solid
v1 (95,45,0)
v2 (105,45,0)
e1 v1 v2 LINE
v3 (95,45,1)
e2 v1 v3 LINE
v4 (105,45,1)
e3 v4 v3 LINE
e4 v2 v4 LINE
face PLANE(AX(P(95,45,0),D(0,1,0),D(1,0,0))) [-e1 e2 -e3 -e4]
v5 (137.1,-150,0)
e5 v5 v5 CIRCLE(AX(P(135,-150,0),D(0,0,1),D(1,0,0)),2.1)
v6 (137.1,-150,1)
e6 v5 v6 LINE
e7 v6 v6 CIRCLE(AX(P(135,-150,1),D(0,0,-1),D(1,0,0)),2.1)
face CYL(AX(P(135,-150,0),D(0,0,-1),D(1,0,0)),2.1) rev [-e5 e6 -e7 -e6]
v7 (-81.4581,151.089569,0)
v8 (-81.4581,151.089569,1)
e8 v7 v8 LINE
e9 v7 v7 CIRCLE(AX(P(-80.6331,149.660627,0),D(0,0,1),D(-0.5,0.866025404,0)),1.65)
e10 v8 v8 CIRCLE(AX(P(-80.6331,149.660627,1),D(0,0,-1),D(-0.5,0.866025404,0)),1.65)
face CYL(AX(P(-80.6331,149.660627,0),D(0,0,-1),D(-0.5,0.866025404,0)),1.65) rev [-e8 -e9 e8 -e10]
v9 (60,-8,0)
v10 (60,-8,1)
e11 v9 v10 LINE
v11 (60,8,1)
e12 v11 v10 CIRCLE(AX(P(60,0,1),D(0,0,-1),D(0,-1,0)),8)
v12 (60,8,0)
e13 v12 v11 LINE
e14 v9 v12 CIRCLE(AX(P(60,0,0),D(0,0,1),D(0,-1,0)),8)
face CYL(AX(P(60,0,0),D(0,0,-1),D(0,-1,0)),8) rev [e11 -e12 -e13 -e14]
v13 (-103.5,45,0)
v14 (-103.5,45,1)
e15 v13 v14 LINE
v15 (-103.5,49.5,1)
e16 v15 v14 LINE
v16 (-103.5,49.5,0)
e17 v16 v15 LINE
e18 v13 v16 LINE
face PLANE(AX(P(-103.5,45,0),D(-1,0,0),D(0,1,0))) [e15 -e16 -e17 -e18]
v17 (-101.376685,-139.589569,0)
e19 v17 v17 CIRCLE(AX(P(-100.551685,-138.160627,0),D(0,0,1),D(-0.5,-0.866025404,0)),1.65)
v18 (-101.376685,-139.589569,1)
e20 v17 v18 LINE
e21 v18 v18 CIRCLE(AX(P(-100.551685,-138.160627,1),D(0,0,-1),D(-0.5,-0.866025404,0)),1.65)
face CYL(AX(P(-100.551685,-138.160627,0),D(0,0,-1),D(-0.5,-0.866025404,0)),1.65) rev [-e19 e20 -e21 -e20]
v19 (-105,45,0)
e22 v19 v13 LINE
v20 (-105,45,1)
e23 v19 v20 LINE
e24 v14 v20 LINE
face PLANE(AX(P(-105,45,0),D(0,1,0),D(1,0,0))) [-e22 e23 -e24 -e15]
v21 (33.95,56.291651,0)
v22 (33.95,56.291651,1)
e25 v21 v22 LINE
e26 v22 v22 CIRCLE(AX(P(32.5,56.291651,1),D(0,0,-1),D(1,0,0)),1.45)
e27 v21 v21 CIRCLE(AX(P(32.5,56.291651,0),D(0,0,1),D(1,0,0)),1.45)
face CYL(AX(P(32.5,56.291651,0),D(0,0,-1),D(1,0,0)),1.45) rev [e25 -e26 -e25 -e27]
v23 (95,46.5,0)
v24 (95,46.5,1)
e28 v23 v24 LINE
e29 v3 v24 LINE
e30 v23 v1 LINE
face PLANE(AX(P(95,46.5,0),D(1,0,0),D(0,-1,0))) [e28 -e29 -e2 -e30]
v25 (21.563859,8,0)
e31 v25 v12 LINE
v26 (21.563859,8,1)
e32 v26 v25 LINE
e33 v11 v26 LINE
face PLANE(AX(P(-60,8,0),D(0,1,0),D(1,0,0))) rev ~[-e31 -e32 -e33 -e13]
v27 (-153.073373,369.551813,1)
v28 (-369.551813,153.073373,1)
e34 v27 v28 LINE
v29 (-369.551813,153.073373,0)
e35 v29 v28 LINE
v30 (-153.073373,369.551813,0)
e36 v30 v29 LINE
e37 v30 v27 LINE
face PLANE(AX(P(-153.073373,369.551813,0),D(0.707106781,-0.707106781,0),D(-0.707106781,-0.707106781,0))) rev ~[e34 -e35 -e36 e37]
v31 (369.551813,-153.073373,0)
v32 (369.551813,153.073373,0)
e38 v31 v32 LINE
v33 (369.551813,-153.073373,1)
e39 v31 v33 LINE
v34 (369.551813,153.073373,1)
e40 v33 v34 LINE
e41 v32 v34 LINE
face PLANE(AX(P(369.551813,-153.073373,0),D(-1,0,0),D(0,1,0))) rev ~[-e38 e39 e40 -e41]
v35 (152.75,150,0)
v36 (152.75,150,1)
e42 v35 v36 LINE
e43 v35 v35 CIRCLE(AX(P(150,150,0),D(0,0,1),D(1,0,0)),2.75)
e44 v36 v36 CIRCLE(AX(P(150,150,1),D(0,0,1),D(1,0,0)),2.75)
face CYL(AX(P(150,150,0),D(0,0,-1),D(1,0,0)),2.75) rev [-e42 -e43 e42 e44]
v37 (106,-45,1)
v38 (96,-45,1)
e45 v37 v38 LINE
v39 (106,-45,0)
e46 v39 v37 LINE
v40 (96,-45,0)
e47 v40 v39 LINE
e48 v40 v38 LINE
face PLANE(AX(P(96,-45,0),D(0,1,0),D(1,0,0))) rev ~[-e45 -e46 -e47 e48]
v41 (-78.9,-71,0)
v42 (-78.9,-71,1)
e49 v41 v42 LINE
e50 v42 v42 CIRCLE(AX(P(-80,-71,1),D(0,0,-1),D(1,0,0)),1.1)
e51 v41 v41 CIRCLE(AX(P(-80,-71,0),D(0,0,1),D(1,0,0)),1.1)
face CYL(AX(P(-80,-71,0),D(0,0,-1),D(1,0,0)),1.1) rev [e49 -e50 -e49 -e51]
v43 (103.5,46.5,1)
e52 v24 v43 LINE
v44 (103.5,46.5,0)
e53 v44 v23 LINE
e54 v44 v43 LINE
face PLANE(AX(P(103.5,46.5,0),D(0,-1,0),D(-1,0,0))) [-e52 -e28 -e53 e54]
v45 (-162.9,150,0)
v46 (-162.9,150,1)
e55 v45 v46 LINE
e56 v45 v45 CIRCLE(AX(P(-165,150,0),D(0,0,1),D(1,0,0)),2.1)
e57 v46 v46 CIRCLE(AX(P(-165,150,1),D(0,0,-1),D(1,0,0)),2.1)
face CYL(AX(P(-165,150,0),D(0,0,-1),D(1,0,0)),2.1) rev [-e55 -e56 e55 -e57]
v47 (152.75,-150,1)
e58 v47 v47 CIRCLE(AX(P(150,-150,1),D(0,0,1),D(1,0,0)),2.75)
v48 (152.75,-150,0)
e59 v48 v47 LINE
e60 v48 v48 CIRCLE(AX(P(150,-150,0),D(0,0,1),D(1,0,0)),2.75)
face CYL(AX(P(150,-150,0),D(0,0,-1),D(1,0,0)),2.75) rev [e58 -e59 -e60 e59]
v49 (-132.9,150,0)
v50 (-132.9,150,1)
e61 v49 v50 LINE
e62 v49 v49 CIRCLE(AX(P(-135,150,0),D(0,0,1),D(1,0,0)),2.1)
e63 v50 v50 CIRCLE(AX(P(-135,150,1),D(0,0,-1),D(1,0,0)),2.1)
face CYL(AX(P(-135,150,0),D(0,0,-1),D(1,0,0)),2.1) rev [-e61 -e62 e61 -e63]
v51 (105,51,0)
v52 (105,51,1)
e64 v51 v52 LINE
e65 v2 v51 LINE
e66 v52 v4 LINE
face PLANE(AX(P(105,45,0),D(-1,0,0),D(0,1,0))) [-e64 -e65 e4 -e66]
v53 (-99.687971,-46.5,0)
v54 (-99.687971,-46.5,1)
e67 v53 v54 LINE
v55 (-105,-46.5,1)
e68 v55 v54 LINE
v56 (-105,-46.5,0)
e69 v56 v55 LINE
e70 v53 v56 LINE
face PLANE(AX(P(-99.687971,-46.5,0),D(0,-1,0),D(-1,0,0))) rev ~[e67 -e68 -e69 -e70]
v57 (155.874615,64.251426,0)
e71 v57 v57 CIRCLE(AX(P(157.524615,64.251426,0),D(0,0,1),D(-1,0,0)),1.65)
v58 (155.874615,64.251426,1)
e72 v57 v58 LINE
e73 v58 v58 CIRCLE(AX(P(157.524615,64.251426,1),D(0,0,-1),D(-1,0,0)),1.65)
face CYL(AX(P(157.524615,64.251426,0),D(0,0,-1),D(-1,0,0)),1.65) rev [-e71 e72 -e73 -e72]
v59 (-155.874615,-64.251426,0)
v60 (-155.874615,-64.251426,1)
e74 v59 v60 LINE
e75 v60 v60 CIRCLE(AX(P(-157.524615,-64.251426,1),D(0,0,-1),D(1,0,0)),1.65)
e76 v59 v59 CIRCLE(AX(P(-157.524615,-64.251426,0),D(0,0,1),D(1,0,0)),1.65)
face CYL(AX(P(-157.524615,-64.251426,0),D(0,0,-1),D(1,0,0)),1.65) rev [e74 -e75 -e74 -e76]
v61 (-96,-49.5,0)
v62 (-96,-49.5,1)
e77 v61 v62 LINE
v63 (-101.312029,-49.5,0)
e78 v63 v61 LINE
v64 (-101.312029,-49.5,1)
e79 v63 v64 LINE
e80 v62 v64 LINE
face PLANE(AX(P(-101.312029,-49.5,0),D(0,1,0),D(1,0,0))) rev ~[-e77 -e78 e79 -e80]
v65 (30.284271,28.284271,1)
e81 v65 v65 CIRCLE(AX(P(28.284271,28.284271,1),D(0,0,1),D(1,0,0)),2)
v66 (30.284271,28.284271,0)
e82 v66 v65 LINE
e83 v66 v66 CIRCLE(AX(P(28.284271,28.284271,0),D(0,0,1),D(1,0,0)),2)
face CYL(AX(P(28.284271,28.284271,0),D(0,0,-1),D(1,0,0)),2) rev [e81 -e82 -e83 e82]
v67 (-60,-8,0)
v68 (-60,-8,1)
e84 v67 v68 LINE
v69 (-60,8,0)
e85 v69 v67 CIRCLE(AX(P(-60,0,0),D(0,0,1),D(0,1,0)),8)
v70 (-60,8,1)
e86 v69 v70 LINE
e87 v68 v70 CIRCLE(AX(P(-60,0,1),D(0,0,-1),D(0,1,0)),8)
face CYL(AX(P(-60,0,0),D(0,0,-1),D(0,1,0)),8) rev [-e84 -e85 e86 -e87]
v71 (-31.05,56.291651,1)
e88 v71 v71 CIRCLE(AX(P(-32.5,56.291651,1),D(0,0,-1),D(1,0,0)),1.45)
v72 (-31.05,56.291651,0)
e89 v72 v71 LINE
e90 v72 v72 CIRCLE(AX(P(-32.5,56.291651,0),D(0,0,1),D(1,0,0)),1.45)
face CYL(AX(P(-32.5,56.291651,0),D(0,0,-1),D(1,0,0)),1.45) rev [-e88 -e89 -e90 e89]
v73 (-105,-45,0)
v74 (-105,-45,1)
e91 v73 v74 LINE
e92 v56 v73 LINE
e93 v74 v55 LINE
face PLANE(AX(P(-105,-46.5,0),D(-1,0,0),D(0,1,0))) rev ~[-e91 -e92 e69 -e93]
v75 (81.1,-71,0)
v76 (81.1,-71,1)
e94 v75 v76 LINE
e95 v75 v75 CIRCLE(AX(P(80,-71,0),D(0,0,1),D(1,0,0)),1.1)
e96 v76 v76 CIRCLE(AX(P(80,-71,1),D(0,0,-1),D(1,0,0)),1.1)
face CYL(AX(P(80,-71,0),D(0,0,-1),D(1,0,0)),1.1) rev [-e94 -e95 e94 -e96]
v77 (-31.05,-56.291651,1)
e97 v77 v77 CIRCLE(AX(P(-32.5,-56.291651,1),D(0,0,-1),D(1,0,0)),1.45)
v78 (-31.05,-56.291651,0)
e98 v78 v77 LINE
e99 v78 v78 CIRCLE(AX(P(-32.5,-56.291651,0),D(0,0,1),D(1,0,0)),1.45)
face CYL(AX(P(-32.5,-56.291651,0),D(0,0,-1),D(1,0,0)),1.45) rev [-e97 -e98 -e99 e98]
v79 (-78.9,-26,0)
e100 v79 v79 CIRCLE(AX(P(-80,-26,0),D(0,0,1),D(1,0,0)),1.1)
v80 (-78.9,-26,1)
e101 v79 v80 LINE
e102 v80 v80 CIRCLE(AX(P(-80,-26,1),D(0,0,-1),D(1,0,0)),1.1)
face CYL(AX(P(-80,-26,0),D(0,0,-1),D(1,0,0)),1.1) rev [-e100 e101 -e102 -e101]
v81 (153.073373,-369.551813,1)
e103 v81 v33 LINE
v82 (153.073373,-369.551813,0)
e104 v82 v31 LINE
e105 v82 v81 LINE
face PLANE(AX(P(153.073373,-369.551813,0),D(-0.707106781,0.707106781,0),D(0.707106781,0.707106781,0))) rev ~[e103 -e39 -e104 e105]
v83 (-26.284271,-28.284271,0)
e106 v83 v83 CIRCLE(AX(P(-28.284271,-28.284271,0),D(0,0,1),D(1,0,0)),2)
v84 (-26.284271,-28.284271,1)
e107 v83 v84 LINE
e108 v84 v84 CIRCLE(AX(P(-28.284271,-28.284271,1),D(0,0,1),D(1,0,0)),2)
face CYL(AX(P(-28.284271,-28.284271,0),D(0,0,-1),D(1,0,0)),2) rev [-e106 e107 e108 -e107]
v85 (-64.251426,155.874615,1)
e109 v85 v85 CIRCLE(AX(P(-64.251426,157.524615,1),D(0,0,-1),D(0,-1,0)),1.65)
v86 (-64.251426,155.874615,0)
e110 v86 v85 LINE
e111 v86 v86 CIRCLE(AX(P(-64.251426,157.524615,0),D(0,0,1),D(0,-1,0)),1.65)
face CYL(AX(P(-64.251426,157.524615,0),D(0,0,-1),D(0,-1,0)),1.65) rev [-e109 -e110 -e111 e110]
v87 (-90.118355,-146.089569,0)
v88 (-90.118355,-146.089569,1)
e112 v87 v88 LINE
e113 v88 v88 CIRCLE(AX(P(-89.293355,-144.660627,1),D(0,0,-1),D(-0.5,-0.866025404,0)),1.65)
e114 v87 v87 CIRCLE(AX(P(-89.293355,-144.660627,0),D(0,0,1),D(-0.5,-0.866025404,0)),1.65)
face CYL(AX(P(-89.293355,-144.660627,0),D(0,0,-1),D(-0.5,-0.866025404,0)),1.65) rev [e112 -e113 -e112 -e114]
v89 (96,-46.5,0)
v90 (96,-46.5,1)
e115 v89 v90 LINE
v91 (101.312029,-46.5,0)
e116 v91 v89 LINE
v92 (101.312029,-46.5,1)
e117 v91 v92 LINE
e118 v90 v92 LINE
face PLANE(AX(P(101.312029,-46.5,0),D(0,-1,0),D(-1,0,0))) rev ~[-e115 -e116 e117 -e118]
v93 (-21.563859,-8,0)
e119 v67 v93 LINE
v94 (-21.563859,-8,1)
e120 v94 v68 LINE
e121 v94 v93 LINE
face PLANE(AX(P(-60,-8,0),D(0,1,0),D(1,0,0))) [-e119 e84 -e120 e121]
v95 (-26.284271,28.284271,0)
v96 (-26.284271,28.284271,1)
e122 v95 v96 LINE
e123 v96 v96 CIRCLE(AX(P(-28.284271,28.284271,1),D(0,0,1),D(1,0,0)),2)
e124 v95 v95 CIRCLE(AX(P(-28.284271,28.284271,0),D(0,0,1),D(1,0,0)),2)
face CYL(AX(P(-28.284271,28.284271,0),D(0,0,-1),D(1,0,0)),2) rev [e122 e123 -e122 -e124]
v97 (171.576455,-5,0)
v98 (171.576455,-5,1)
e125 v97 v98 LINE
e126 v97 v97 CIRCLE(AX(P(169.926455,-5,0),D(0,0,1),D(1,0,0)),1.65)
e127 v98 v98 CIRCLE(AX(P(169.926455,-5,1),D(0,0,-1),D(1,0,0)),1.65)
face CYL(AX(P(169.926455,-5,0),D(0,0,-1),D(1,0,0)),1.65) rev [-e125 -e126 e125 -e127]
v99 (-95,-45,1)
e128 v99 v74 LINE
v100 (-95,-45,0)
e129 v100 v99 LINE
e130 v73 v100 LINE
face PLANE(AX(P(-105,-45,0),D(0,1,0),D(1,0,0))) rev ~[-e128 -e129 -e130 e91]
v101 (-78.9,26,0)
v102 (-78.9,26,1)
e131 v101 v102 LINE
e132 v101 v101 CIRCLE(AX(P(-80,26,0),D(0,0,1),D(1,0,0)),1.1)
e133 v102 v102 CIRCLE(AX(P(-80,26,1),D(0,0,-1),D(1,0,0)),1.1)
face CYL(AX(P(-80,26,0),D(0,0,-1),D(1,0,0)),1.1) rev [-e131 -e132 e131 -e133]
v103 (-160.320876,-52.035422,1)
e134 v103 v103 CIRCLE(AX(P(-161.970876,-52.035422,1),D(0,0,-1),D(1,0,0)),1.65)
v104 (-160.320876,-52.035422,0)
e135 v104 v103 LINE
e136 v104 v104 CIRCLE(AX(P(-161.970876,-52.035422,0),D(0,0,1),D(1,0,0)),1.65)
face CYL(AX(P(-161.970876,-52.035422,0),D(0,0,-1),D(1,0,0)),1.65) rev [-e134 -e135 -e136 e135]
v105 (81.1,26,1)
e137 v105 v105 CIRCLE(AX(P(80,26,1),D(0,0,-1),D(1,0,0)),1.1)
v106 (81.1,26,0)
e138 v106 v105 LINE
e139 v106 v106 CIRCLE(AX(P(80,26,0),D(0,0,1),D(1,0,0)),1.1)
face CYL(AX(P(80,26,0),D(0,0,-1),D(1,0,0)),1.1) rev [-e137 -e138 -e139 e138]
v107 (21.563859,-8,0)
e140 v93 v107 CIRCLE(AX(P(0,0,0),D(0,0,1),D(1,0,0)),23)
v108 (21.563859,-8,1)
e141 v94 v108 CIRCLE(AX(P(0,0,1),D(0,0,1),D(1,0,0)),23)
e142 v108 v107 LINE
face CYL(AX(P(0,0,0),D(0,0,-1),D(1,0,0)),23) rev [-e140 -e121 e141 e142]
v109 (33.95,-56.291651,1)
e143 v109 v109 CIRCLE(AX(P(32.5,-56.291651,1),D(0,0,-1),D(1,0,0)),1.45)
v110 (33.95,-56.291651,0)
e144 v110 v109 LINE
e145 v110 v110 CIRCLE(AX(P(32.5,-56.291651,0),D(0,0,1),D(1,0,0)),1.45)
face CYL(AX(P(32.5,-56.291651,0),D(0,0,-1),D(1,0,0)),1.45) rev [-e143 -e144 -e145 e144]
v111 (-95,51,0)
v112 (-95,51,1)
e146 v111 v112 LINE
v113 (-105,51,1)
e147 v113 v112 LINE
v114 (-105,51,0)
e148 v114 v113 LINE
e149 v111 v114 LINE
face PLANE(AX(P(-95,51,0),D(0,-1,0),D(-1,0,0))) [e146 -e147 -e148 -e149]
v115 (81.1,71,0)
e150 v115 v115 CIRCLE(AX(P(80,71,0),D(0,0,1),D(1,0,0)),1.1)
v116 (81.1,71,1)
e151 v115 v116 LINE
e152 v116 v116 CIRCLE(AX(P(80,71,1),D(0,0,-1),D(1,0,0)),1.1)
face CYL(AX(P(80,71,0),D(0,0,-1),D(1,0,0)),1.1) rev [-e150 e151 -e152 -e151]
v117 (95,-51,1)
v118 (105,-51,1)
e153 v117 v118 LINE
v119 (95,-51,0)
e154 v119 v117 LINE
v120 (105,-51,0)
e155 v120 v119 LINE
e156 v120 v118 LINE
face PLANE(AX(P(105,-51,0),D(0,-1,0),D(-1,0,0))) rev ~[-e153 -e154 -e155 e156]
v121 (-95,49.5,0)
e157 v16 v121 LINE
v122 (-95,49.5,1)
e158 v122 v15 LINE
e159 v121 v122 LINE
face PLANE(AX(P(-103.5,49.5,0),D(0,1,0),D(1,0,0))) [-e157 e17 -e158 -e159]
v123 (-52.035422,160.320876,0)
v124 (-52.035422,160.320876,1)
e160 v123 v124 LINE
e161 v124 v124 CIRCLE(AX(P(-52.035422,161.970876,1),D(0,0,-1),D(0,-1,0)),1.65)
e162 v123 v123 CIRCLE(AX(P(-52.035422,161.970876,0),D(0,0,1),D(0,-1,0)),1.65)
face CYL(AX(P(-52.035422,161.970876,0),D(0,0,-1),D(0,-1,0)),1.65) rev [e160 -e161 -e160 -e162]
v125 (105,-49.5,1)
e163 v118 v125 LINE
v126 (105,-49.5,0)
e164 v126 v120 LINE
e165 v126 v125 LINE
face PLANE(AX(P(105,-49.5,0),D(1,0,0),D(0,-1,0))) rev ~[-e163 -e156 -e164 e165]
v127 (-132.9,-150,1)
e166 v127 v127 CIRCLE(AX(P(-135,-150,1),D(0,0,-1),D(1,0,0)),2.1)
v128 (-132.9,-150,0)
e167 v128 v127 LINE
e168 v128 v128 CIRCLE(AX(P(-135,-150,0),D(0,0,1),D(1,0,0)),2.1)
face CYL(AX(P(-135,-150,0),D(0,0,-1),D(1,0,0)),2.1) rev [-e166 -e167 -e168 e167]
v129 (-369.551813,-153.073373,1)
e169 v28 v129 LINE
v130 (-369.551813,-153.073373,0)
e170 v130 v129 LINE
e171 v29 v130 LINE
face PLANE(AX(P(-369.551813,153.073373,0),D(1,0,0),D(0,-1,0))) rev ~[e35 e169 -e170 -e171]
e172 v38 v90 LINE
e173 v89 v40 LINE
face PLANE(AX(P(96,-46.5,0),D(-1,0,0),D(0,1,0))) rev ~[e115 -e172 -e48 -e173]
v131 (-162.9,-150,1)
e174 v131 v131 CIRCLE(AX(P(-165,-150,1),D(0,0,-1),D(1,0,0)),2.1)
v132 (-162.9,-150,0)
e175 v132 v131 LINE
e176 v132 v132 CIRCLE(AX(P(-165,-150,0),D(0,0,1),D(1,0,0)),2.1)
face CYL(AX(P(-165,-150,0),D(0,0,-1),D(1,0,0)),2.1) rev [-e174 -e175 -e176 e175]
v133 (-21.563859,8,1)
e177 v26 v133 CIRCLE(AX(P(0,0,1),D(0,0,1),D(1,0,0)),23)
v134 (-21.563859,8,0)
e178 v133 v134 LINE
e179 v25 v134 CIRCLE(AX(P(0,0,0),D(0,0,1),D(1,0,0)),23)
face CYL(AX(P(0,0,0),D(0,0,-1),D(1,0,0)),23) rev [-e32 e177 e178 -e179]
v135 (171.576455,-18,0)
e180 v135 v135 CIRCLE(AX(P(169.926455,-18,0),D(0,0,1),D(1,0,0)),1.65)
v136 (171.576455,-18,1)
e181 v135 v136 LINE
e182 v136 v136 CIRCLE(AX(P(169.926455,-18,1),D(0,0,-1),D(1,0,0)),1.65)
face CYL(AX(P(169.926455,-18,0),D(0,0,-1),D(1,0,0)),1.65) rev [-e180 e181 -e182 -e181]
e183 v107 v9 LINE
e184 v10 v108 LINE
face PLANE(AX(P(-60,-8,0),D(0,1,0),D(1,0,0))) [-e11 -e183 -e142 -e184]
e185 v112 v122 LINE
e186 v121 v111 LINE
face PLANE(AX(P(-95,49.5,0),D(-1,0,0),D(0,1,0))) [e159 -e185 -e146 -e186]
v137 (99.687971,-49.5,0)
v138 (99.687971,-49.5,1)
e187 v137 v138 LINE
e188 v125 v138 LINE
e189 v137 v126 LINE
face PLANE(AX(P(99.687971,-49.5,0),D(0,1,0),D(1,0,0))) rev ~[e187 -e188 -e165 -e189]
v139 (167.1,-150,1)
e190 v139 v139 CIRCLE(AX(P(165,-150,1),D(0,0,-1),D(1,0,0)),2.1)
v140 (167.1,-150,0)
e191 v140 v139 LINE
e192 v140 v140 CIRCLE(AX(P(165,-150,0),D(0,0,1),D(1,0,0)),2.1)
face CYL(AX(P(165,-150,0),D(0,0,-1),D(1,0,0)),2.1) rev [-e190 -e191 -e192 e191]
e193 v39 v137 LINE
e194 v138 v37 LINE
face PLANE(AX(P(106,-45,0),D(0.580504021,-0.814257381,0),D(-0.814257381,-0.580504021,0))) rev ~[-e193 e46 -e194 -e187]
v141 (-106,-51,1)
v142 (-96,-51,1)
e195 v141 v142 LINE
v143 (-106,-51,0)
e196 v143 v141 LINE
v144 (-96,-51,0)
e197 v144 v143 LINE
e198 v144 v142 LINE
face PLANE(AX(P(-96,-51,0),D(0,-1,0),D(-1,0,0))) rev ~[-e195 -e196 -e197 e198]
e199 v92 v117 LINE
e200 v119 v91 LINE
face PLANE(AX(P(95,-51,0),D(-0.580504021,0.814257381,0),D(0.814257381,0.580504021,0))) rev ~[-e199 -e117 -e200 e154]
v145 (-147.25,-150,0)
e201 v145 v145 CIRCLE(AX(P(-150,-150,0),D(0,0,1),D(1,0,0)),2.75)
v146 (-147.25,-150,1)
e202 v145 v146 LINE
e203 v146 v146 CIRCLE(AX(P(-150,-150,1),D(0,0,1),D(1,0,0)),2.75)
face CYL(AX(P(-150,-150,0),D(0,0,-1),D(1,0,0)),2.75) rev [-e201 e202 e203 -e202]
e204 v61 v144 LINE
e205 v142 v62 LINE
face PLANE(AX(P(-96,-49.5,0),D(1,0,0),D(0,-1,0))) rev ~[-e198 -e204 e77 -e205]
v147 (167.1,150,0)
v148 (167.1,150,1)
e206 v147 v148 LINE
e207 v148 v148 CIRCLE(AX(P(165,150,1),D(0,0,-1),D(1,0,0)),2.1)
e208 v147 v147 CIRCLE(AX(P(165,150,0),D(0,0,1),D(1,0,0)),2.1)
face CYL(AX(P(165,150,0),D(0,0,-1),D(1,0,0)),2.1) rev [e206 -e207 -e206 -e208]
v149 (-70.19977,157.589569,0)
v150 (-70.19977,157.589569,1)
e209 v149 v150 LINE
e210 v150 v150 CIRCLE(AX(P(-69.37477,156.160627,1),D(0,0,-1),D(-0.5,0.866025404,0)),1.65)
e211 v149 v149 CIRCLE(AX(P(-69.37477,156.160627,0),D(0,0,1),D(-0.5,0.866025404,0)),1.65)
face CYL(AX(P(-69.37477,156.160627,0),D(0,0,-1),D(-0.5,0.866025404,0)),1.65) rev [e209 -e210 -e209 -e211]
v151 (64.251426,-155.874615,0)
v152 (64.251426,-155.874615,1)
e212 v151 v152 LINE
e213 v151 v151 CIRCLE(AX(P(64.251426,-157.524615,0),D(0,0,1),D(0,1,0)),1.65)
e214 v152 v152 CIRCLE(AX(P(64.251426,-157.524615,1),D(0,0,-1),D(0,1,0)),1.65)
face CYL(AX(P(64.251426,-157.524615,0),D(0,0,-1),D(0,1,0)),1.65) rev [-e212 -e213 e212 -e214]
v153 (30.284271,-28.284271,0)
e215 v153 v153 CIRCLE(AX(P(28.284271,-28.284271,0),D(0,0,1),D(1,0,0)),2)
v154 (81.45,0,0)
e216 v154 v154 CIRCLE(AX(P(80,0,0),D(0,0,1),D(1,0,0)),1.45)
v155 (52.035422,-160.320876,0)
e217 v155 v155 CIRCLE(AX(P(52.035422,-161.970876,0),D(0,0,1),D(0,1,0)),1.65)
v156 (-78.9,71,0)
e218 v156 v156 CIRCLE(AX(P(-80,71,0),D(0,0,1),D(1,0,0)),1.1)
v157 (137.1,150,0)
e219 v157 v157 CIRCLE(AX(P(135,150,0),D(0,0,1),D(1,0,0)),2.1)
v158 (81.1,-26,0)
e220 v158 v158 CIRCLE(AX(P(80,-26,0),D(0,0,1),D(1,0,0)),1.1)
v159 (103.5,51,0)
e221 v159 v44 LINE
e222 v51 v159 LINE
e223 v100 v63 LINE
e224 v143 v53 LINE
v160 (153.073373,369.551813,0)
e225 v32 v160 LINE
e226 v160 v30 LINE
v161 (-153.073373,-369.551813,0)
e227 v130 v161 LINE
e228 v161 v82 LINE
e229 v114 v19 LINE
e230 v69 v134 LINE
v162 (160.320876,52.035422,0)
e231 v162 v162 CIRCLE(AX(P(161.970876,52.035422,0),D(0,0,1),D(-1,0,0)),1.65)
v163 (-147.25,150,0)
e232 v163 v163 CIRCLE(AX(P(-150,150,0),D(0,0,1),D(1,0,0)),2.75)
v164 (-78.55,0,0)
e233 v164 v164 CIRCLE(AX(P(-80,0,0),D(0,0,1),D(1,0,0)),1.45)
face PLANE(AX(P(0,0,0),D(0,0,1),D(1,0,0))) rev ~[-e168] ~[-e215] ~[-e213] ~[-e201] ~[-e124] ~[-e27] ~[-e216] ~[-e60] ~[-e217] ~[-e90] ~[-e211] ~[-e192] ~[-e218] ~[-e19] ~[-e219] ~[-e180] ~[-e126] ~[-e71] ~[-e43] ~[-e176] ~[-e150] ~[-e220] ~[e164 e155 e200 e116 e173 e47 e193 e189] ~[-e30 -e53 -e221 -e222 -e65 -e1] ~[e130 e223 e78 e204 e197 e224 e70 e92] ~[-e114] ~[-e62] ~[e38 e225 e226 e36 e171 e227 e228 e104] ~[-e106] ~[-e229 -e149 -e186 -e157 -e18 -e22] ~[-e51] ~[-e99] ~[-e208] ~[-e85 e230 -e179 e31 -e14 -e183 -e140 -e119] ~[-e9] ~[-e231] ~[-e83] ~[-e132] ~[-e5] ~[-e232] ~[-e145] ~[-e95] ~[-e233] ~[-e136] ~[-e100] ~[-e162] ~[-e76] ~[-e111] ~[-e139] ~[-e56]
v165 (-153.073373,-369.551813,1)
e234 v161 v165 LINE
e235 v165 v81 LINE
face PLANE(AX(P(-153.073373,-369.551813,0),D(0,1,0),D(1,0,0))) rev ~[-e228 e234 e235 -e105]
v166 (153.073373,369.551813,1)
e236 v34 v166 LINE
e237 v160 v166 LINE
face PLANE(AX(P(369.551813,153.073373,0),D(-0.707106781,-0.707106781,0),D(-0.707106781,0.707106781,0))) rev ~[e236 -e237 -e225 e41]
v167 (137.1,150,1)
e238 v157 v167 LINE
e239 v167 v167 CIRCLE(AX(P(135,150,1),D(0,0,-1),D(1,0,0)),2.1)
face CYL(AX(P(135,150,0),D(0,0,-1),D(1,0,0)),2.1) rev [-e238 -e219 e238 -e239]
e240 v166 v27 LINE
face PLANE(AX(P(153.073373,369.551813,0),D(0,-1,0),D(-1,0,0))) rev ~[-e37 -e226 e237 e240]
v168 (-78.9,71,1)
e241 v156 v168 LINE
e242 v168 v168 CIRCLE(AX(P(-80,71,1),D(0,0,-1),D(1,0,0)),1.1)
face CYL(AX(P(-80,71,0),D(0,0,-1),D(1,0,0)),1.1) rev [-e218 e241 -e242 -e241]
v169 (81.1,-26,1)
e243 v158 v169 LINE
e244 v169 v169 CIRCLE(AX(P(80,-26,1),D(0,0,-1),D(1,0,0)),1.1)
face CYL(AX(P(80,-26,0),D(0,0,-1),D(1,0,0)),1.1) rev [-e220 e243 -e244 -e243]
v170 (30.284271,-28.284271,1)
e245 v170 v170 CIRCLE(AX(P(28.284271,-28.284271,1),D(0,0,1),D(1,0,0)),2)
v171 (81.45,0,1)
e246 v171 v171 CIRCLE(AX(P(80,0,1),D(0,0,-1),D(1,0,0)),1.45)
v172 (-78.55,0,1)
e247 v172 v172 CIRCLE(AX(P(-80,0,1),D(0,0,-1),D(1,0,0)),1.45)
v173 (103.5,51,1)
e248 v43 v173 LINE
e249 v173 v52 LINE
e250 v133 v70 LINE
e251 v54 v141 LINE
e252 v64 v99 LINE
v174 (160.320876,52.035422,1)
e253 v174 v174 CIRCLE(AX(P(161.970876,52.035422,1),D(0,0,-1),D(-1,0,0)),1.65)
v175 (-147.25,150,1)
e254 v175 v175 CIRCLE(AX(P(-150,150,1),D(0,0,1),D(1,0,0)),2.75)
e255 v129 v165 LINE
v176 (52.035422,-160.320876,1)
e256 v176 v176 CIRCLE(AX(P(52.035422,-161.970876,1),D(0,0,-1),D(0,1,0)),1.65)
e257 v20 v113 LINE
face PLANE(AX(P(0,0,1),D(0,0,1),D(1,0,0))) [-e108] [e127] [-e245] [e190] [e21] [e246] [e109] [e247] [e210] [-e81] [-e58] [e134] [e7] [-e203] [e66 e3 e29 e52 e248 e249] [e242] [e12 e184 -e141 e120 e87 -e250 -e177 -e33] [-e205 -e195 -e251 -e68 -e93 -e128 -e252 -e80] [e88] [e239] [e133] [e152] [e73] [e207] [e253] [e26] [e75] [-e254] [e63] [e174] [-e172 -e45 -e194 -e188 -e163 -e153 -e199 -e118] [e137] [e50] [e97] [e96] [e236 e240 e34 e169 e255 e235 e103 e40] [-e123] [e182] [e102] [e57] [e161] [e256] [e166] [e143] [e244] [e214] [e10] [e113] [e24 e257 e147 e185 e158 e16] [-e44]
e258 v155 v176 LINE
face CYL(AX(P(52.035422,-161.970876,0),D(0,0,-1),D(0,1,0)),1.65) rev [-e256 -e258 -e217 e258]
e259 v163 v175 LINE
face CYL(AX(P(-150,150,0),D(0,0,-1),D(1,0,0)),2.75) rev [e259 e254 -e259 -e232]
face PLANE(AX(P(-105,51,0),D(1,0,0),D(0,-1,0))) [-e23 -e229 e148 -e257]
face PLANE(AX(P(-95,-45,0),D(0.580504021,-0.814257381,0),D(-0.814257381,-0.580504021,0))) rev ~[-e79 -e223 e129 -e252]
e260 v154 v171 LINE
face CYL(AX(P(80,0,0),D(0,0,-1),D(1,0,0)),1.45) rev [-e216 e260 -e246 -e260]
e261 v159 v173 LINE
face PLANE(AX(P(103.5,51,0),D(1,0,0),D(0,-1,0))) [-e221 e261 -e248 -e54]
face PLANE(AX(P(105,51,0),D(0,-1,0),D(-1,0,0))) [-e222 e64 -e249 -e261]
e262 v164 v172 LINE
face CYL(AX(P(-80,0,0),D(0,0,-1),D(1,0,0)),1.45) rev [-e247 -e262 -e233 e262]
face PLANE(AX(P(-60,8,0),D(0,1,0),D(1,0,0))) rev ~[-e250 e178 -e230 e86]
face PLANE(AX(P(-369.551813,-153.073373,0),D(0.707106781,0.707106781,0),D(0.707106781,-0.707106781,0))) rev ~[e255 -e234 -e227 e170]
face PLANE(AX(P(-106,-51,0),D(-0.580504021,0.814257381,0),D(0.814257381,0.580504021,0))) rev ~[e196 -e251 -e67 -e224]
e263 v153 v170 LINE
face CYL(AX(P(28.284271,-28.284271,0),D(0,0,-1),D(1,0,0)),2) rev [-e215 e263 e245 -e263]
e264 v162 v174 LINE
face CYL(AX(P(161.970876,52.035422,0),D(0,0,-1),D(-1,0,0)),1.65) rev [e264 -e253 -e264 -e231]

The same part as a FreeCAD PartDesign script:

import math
import FreeCAD as App
import Part
import Sketcher
from FreeCAD import Vector
Q = App.Units.Quantity


def edges_at(feature, points):
    """Names of the edges that pass closest to the given points."""
    edges = feature.Shape.Edges
    near = lambda p: min(range(len(edges)), key=lambda i: edges[i].distToShape(Part.Vertex(*p))[0])
    return sorted({f"Edge{near(p) + 1}" for p in points})

doc = App.newDocument("Part")
body = doc.addObject("PartDesign::Body", "Body")

sketch1 = body.newObject("Sketcher::SketchObject", "Sketch")
sketch1.AttachmentSupport = (doc.getObject("XY_Plane"), [""])
sketch1.MapMode = "FlatFace"
sketch1.addGeometry([
    Part.LineSegment(Vector(103.6, 250, 0), Vector(-103.6, 250, 0)),
    Part.LineSegment(Vector(-103.6, 250, 0), Vector(-250, 103.6, 0)),
    Part.LineSegment(Vector(-250, 103.6, 0), Vector(-250, -103.6, 0)),
    Part.LineSegment(Vector(-250, -103.6, 0), Vector(-103.6, -250, 0)),
    Part.LineSegment(Vector(-103.6, -250, 0), Vector(103.6, -250, 0)),
    Part.LineSegment(Vector(103.6, -250, 0), Vector(250, -103.6, 0)),
    Part.LineSegment(Vector(250, -103.6, 0), Vector(250, 103.6, 0)),
    Part.LineSegment(Vector(250, 103.6, 0), Vector(103.6, 250, 0)),
    Part.Circle(Vector(-150, -150, 0), Vector(0, 0, 1), 2.8),
    Part.Circle(Vector(-28.3, -28.3, 0), Vector(0, 0, 1), 2),
    Part.Circle(Vector(150, -150, 0), Vector(0, 0, 1), 2.8),
    Part.Circle(Vector(28.3, -28.3, 0), Vector(0, 0, 1), 2),
    Part.Circle(Vector(-28.3, 28.3, 0), Vector(0, 0, 1), 2),
    Part.Circle(Vector(-150, 150, 0), Vector(0, 0, 1), 2.8),
    Part.Circle(Vector(0, 0, 0), Vector(0, 0, 1), 23),
    Part.Circle(Vector(28.3, 28.3, 0), Vector(0, 0, 1), 2),
    Part.Circle(Vector(150, 150, 0), Vector(0, 0, 1), 2.8),
], False)
sketch1.addConstraint([
    Sketcher.Constraint("Coincident", 0, 2, 1, 1),
    Sketcher.Constraint("Coincident", 1, 2, 2, 1),
    Sketcher.Constraint("Coincident", 2, 2, 3, 1),
    Sketcher.Constraint("Coincident", 3, 2, 4, 1),
    Sketcher.Constraint("Coincident", 4, 2, 5, 1),
    Sketcher.Constraint("Coincident", 5, 2, 6, 1),
    Sketcher.Constraint("Coincident", 6, 2, 7, 1),
    Sketcher.Constraint("Coincident", 7, 2, 0, 1),
    Sketcher.Constraint("Horizontal", 0),
    Sketcher.Constraint("Vertical", 2),
    Sketcher.Constraint("Horizontal", 4),
    Sketcher.Constraint("Vertical", 6),
    Sketcher.Constraint("Coincident", 14, 3, -1, 1),
    Sketcher.Constraint("Equal", 8, 10),
    Sketcher.Constraint("Equal", 9, 11),
    Sketcher.Constraint("Equal", 11, 12),
    Sketcher.Constraint("Equal", 10, 13),
    Sketcher.Constraint("Equal", 12, 15),
    Sketcher.Constraint("Equal", 13, 16),
    Sketcher.Constraint("Symmetric", 11, 3, 12, 3, -1, 1),
    Sketcher.Constraint("Symmetric", 10, 3, 13, 3, -1, 1),
    Sketcher.Constraint("Symmetric", 9, 3, 15, 3, -1, 1),
    Sketcher.Constraint("Symmetric", 8, 3, 16, 3, -1, 1),
    Sketcher.Constraint("Symmetric", 0, 2, 4, 2, -1, 1),
    Sketcher.Constraint("Symmetric", 1, 2, 5, 2, -1, 1),
    Sketcher.Constraint("Symmetric", 8, 3, 10, 3, -2),
    Sketcher.Constraint("Symmetric", 9, 3, 11, 3, -2),
    Sketcher.Constraint("Perpendicular", 1, 3),
    Sketcher.Constraint("Perpendicular", 5, 7),
    Sketcher.Constraint("Horizontal", 2, 2, 5, 2),
    Sketcher.Constraint("Horizontal", 1, 2, 6, 2),
    Sketcher.Constraint("Vertical", 0, 2, 3, 2),
    Sketcher.Constraint("Equal", 4, 2),
    Sketcher.Constraint("Diameter", 9, Q("4 mm")),
    Sketcher.Constraint("Diameter", 14, Q("46 mm")),
    Sketcher.Constraint("Diameter", 8, Q("5.5 mm")),
    Sketcher.Constraint("DistanceX", 8, 3, -1, 1, Q("150 mm")),
    Sketcher.Constraint("DistanceY", 8, 3, -1, 1, Q("150 mm")),
    Sketcher.Constraint("DistanceY", -1, 1, 0, 2, Q("250 mm")),
    Sketcher.Constraint("Distance", 1, Q("207.106781 mm")),
    Sketcher.Constraint("DistanceX", 9, 3, -1, 1, Q("28.284271 mm")),
    Sketcher.Constraint("DistanceY", 9, 3, -1, 1, Q("28.284271 mm")),
])
pad1 = body.newObject("PartDesign::Pad", "Pad")
pad1.Profile = sketch1
pad1.Length = 1

sketch2 = body.newObject("Sketcher::SketchObject", "Sketch001")
sketch2.AttachmentSupport = (doc.getObject("XY_Plane"), [""])
sketch2.MapMode = "FlatFace"
sketch2.addGeometry([
    Part.Circle(Vector(169.9, -5, 0), Vector(0, 0, 1), 1.6),
    Part.Circle(Vector(169.9, -18, 0), Vector(0, 0, 1), 1.6),
], False)
sketch2.addConstraint([
    Sketcher.Constraint("Equal", 0, 1),
    Sketcher.Constraint("Vertical", 0, 3, 1, 3),
    Sketcher.Constraint("Diameter", 0, Q("3.3 mm")),
    Sketcher.Constraint("DistanceY", 0, 3, -1, 1, Q("5 mm")),
    Sketcher.Constraint("DistanceY", 1, 3, -1, 1, Q("18 mm")),
    Sketcher.Constraint("DistanceX", -1, 1, 0, 3, Q("169.926455 mm")),
])
pocket1 = body.newObject("PartDesign::Pocket", "Pocket")
pocket1.Profile = sketch2
pocket1.Type = "ThroughAll"
pocket1.Reversed = True
doc.recompute()

polarpattern = body.newObject("PartDesign::PolarPattern", "PolarPattern")
polarpattern.Originals = [pocket1]
polarpattern.Axis = (doc.getObject("Z_Axis"), [""])
polarpattern.Angle = 360
polarpattern.Occurrences = 3
body.Tip = polarpattern

sketch3 = body.newObject("Sketcher::SketchObject", "Sketch002")
sketch3.AttachmentSupport = (doc.getObject("XY_Plane"), [""])
sketch3.MapMode = "FlatFace"
sketch3.addGeometry([
    Part.ArcOfCircle(Part.Circle(Vector(-60, 0, 0), Vector(0, 0, 1), 8), math.radians(90), math.radians(270)),
    Part.LineSegment(Vector(-60, -8, 0), Vector(60, -8, 0)),
    Part.ArcOfCircle(Part.Circle(Vector(60, 0, 0), Vector(0, 0, 1), 8), math.radians(-90), math.radians(90)),
    Part.LineSegment(Vector(60, 8, 0), Vector(-60, 8, 0)),
], False)
sketch3.addConstraint([
    Sketcher.Constraint("Tangent", 0, 2, 1, 1),
    Sketcher.Constraint("Tangent", 1, 2, 2, 1),
    Sketcher.Constraint("Tangent", 2, 2, 3, 1),
    Sketcher.Constraint("Tangent", 3, 2, 0, 1),
    Sketcher.Constraint("Horizontal", 1),
    Sketcher.Constraint("Horizontal", 3),
    Sketcher.Constraint("Symmetric", 0, 3, 2, 3, -1, 1),
    Sketcher.Constraint("Radius", 0, Q("8 mm")),
    Sketcher.Constraint("DistanceX", 1, 1, 1, 2, Q("120 mm")),
])
pocket2 = body.newObject("PartDesign::Pocket", "Pocket001")
pocket2.Profile = sketch3
pocket2.Length = 5
pocket2.Reversed = True

sketch4 = body.newObject("Sketcher::SketchObject", "Sketch003")
sketch4.AttachmentSupport = (doc.getObject("XY_Plane"), [""])
sketch4.MapMode = "FlatFace"
sketch4.addGeometry([
    Part.Circle(Vector(-80, 71, 0), Vector(0, 0, 1), 1.1),
    Part.Circle(Vector(-80, 26, 0), Vector(0, 0, 1), 1.1),
    Part.Circle(Vector(-80, -26, 0), Vector(0, 0, 1), 1.1),
    Part.Circle(Vector(-80, -71, 0), Vector(0, 0, 1), 1.1),
    Part.Circle(Vector(-80, 0, 0), Vector(0, 0, 1), 1.4),
    Part.Circle(Vector(80, 71, 0), Vector(0, 0, 1), 1.1),
    Part.Circle(Vector(80, 26, 0), Vector(0, 0, 1), 1.1),
    Part.Circle(Vector(80, 0, 0), Vector(0, 0, 1), 1.4),
    Part.Circle(Vector(80, -26, 0), Vector(0, 0, 1), 1.1),
    Part.Circle(Vector(80, -71, 0), Vector(0, 0, 1), 1.1),
    Part.LineSegment(Vector(-95, 51, 0), Vector(-105, 51, 0)),
    Part.LineSegment(Vector(-105, 51, 0), Vector(-105, 45, 0)),
    Part.LineSegment(Vector(-105, 45, 0), Vector(-103.5, 45, 0)),
    Part.LineSegment(Vector(-103.5, 45, 0), Vector(-103.5, 49.5, 0)),
    Part.LineSegment(Vector(-103.5, 49.5, 0), Vector(-95, 49.5, 0)),
    Part.LineSegment(Vector(-95, 49.5, 0), Vector(-95, 51, 0)),
    Part.LineSegment(Vector(-95, -45, 0), Vector(-105, -45, 0)),
    Part.LineSegment(Vector(-105, -45, 0), Vector(-105, -46.5, 0)),
    Part.LineSegment(Vector(-105, -46.5, 0), Vector(-99.7, -46.5, 0)),
    Part.LineSegment(Vector(-99.7, -46.5, 0), Vector(-106, -51, 0)),
    Part.LineSegment(Vector(-106, -51, 0), Vector(-96, -51, 0)),
    Part.LineSegment(Vector(-96, -51, 0), Vector(-96, -49.5, 0)),
    Part.LineSegment(Vector(-96, -49.5, 0), Vector(-101.3, -49.5, 0)),
    Part.LineSegment(Vector(-101.3, -49.5, 0), Vector(-95, -45, 0)),
    Part.LineSegment(Vector(95, -51, 0), Vector(105, -51, 0)),
    Part.LineSegment(Vector(105, -51, 0), Vector(105, -49.5, 0)),
    Part.LineSegment(Vector(105, -49.5, 0), Vector(99.7, -49.5, 0)),
    Part.LineSegment(Vector(99.7, -49.5, 0), Vector(106, -45, 0)),
    Part.LineSegment(Vector(106, -45, 0), Vector(96, -45, 0)),
    Part.LineSegment(Vector(96, -45, 0), Vector(96, -46.5, 0)),
    Part.LineSegment(Vector(96, -46.5, 0), Vector(101.3, -46.5, 0)),
    Part.LineSegment(Vector(101.3, -46.5, 0), Vector(95, -51, 0)),
    Part.LineSegment(Vector(95, 45, 0), Vector(105, 45, 0)),
    Part.LineSegment(Vector(105, 45, 0), Vector(105, 51, 0)),
    Part.LineSegment(Vector(105, 51, 0), Vector(103.5, 51, 0)),
    Part.LineSegment(Vector(103.5, 51, 0), Vector(103.5, 46.5, 0)),
    Part.LineSegment(Vector(103.5, 46.5, 0), Vector(95, 46.5, 0)),
    Part.LineSegment(Vector(95, 46.5, 0), Vector(95, 45, 0)),
], False)
sketch4.addConstraint([
    Sketcher.Constraint("Coincident", 10, 2, 11, 1),
    Sketcher.Constraint("Coincident", 11, 2, 12, 1),
    Sketcher.Constraint("Coincident", 12, 2, 13, 1),
    Sketcher.Constraint("Coincident", 13, 2, 14, 1),
    Sketcher.Constraint("Coincident", 14, 2, 15, 1),
    Sketcher.Constraint("Coincident", 15, 2, 10, 1),
    Sketcher.Constraint("Coincident", 16, 2, 17, 1),
    Sketcher.Constraint("Coincident", 17, 2, 18, 1),
    Sketcher.Constraint("Coincident", 18, 2, 19, 1),
    Sketcher.Constraint("Coincident", 19, 2, 20, 1),
    Sketcher.Constraint("Coincident", 20, 2, 21, 1),
    Sketcher.Constraint("Coincident", 21, 2, 22, 1),
    Sketcher.Constraint("Coincident", 22, 2, 23, 1),
    Sketcher.Constraint("Coincident", 23, 2, 16, 1),
    Sketcher.Constraint("Coincident", 24, 2, 25, 1),
    Sketcher.Constraint("Coincident", 25, 2, 26, 1),
    Sketcher.Constraint("Coincident", 26, 2, 27, 1),
    Sketcher.Constraint("Coincident", 27, 2, 28, 1),
    Sketcher.Constraint("Coincident", 28, 2, 29, 1),
    Sketcher.Constraint("Coincident", 29, 2, 30, 1),
    Sketcher.Constraint("Coincident", 30, 2, 31, 1),
    Sketcher.Constraint("Coincident", 31, 2, 24, 1),
    Sketcher.Constraint("Coincident", 32, 2, 33, 1),
    Sketcher.Constraint("Coincident", 33, 2, 34, 1),
    Sketcher.Constraint("Coincident", 34, 2, 35, 1),
    Sketcher.Constraint("Coincident", 35, 2, 36, 1),
    Sketcher.Constraint("Coincident", 36, 2, 37, 1),
    Sketcher.Constraint("Coincident", 37, 2, 32, 1),
    Sketcher.Constraint("Horizontal", 10),
    Sketcher.Constraint("Vertical", 11),
    Sketcher.Constraint("Horizontal", 12),
    Sketcher.Constraint("Vertical", 13),
    Sketcher.Constraint("Horizontal", 14),
    Sketcher.Constraint("Vertical", 15),
    Sketcher.Constraint("Horizontal", 16),
    Sketcher.Constraint("Vertical", 17),
    Sketcher.Constraint("Horizontal", 18),
    Sketcher.Constraint("Horizontal", 20),
    Sketcher.Constraint("Vertical", 21),
    Sketcher.Constraint("Horizontal", 22),
    Sketcher.Constraint("Horizontal", 24),
    Sketcher.Constraint("Vertical", 25),
    Sketcher.Constraint("Horizontal", 26),
    Sketcher.Constraint("Horizontal", 28),
    Sketcher.Constraint("Vertical", 29),
    Sketcher.Constraint("Horizontal", 30),
    Sketcher.Constraint("Horizontal", 32),
    Sketcher.Constraint("Vertical", 33),
    Sketcher.Constraint("Horizontal", 34),
    Sketcher.Constraint("Vertical", 35),
    Sketcher.Constraint("Horizontal", 36),
    Sketcher.Constraint("Vertical", 37),
    Sketcher.Constraint("Equal", 0, 1),
    Sketcher.Constraint("Equal", 1, 2),
    Sketcher.Constraint("Equal", 2, 3),
    Sketcher.Constraint("Equal", 3, 5),
    Sketcher.Constraint("Equal", 5, 6),
    Sketcher.Constraint("Equal", 4, 7),
    Sketcher.Constraint("Equal", 6, 8),
    Sketcher.Constraint("Equal", 8, 9),
    Sketcher.Constraint("Symmetric", 3, 3, 5, 3, -1, 1),
    Sketcher.Constraint("Symmetric", 2, 3, 6, 3, -1, 1),
    Sketcher.Constraint("Symmetric", 4, 3, 7, 3, -1, 1),
    Sketcher.Constraint("Symmetric", 1, 3, 8, 3, -1, 1),
    Sketcher.Constraint("Symmetric", 0, 3, 9, 3, -1, 1),
    Sketcher.Constraint("Symmetric", 10, 2, 24, 2, -1, 1),
    Sketcher.Constraint("Symmetric", 16, 2, 32, 2, -1, 1),
    Sketcher.Constraint("Symmetric", 0, 3, 5, 3, -2),
    Sketcher.Constraint("Symmetric", 1, 3, 6, 3, -2),
    Sketcher.Constraint("Symmetric", 11, 2, 32, 2, -2),
    Sketcher.Constraint("PointOnObject", 4, 3, -1),
    Sketcher.Constraint("Parallel", 19, 23),
    Sketcher.Constraint("Parallel", 23, 27),
    Sketcher.Constraint("Parallel", 27, 31),
    Sketcher.Constraint("Horizontal", 20, 2, 24, 2),
    Sketcher.Constraint("Horizontal", 22, 2, 25, 2),
    Sketcher.Constraint("Horizontal", 23, 2, 27, 2),
    Sketcher.Constraint("Horizontal", 18, 2, 29, 2),
    Sketcher.Constraint("Horizontal", 15, 2, 33, 2),
    Sketcher.Constraint("Vertical", 0, 3, 1, 3),
    Sketcher.Constraint("Vertical", 3, 3, 4, 3),
    Sketcher.Constraint("Vertical", 15, 2, 23, 2),
    Sketcher.Constraint("Vertical", 31, 2, 36, 2),
    Sketcher.Constraint("Equal", 16, 20),
    Sketcher.Constraint("Equal", 18, 22),
    Sketcher.Constraint("Equal", 20, 24),
    Sketcher.Constraint("Equal", 22, 26),
    Sketcher.Constraint("Equal", 24, 28),
    Sketcher.Constraint("Equal", 12, 34),
    Sketcher.Constraint("Equal", 34, 15),
    Sketcher.Constraint("Equal", 15, 17),
    Sketcher.Constraint("Equal", 13, 35),
    Sketcher.Constraint("Diameter", 0, Q("2.2 mm")),
    Sketcher.Constraint("Diameter", 4, Q("2.9 mm")),
    Sketcher.Constraint("DistanceX", 10, 2, 10, 1, Q("10 mm")),
    Sketcher.Constraint("DistanceY", 11, 2, 11, 1, Q("6 mm")),
    Sketcher.Constraint("DistanceX", 12, 1, 12, 2, Q("1.5 mm")),
    Sketcher.Constraint("DistanceX", 0, 3, -1, 1, Q("80 mm")),
    Sketcher.Constraint("DistanceY", -1, 1, 0, 3, Q("71 mm")),
    Sketcher.Constraint("DistanceY", -1, 1, 1, 3, Q("26 mm")),
    Sketcher.Constraint("DistanceX", 10, 2, -1, 1, Q("105 mm")),
    Sketcher.Constraint("DistanceY", -1, 1, 10, 2, Q("51 mm")),
    Sketcher.Constraint("DistanceX", 19, 2, -1, 1, Q("106 mm")),
    Sketcher.Constraint("DistanceX", 18, 1, 18, 2, Q("5.312029 mm")),
])
pocket3 = body.newObject("PartDesign::Pocket", "Pocket002")
pocket3.Profile = sketch4
pocket3.Type = "ThroughAll"
pocket3.Reversed = True

sketch5 = body.newObject("Sketcher::SketchObject", "Sketch004")
sketch5.AttachmentSupport = (doc.getObject("XY_Plane"), [""])
sketch5.MapMode = "FlatFace"
sketch5.addGeometry([
    Part.Circle(Vector(-32.5, -56.3, 0), Vector(0, 0, 1), 1.4),
    Part.Circle(Vector(32.5, -56.3, 0), Vector(0, 0, 1), 1.4),
    Part.Circle(Vector(-32.5, 56.3, 0), Vector(0, 0, 1), 1.4),
    Part.Circle(Vector(32.5, 56.3, 0), Vector(0, 0, 1), 1.4),
], False)
sketch5.addConstraint([
    Sketcher.Constraint("Equal", 0, 1),
    Sketcher.Constraint("Equal", 1, 2),
    Sketcher.Constraint("Equal", 2, 3),
    Sketcher.Constraint("Symmetric", 1, 3, 2, 3, -1, 1),
    Sketcher.Constraint("Symmetric", 0, 3, 3, 3, -1, 1),
    Sketcher.Constraint("Symmetric", 0, 3, 1, 3, -2),
    Sketcher.Constraint("Diameter", 0, Q("2.9 mm")),
    Sketcher.Constraint("DistanceX", 0, 3, 1, 3, Q("65 mm")),
    Sketcher.Constraint("DistanceY", 0, 3, -1, 1, Q("56.291651 mm")),
])
pocket4 = body.newObject("PartDesign::Pocket", "Pocket003")
pocket4.Profile = sketch5
pocket4.Type = "ThroughAll"
pocket4.Reversed = True

sketch6 = body.newObject("Sketcher::SketchObject", "Sketch005")
sketch6.AttachmentSupport = (doc.getObject("XY_Plane"), [""])
sketch6.MapMode = "FlatFace"
sketch6.addGeometry([
    Part.Circle(Vector(135, 150, 0), Vector(0, 0, 1), 2.1),
    Part.Circle(Vector(165, 150, 0), Vector(0, 0, 1), 2.1),
    Part.Circle(Vector(-165, 150, 0), Vector(0, 0, 1), 2.1),
    Part.Circle(Vector(-135, 150, 0), Vector(0, 0, 1), 2.1),
    Part.Circle(Vector(-165, -150, 0), Vector(0, 0, 1), 2.1),
    Part.Circle(Vector(-135, -150, 0), Vector(0, 0, 1), 2.1),
    Part.Circle(Vector(135, -150, 0), Vector(0, 0, 1), 2.1),
    Part.Circle(Vector(165, -150, 0), Vector(0, 0, 1), 2.1),
], False)
sketch6.addConstraint([
    Sketcher.Constraint("Equal", 0, 1),
    Sketcher.Constraint("Equal", 1, 2),
    Sketcher.Constraint("Equal", 2, 3),
    Sketcher.Constraint("Equal", 3, 4),
    Sketcher.Constraint("Equal", 4, 5),
    Sketcher.Constraint("Equal", 5, 6),
    Sketcher.Constraint("Equal", 6, 7),
    Sketcher.Constraint("Symmetric", 1, 3, 4, 3, -1, 1),
    Sketcher.Constraint("Symmetric", 0, 3, 5, 3, -1, 1),
    Sketcher.Constraint("Symmetric", 3, 3, 6, 3, -1, 1),
    Sketcher.Constraint("Symmetric", 2, 3, 7, 3, -1, 1),
    Sketcher.Constraint("Symmetric", 1, 3, 2, 3, -2),
    Sketcher.Constraint("Symmetric", 0, 3, 3, 3, -2),
    Sketcher.Constraint("Horizontal", 0, 3, 1, 3),
    Sketcher.Constraint("Diameter", 0, Q("4.2 mm")),
    Sketcher.Constraint("DistanceX", -1, 1, 0, 3, Q("135 mm")),
    Sketcher.Constraint("DistanceY", -1, 1, 0, 3, Q("150 mm")),
    Sketcher.Constraint("DistanceX", -1, 1, 1, 3, Q("165 mm")),
])
pocket5 = body.newObject("PartDesign::Pocket", "Pocket004")
pocket5.Profile = sketch6
pocket5.Type = "ThroughAll"
pocket5.Reversed = True

sketch7 = body.newObject("Sketcher::SketchObject", "Sketch006")
sketch7.AttachmentSupport = (doc.getObject("XY_Plane"), [""])
sketch7.MapMode = "FlatFace"
sketch7.addGeometry([
    Part.Circle(Vector(-162, -52, 0), Vector(0, 0, 1), 1.6),
    Part.Circle(Vector(-157.5, -64.3, 0), Vector(0, 0, 1), 1.6),
], False)
sketch7.addConstraint([
    Sketcher.Constraint("Equal", 0, 1),
    Sketcher.Constraint("Diameter", 0, Q("3.3 mm")),
    Sketcher.Constraint("DistanceY", 0, 3, -1, 1, Q("52.035422 mm")),
    Sketcher.Constraint("DistanceX", 0, 3, 1, 3, Q("4.446261 mm")),
    Sketcher.Constraint("DistanceX", 0, 3, -1, 1, Q("161.970876 mm")),
    Sketcher.Constraint("DistanceY", 1, 3, -1, 1, Q("64.251426 mm")),
])
pocket6 = body.newObject("PartDesign::Pocket", "Pocket005")
pocket6.Profile = sketch7
pocket6.Type = "ThroughAll"
pocket6.Reversed = True
doc.recompute()

polarpattern2 = body.newObject("PartDesign::PolarPattern", "PolarPattern001")
polarpattern2.Originals = [pocket6]
polarpattern2.Axis = (doc.getObject("Z_Axis"), [""])
polarpattern2.Angle = 360
polarpattern2.Occurrences = 4
body.Tip = polarpattern2
doc.recompute()

fillet = body.newObject("PartDesign::Fillet", "Fillet")
fillet.Base = (polarpattern2, edges_at(polarpattern2, [
    (-250, -103.553, 0.5),
    (-103.553, -250, 0.5),
    (103.553, -250, 0.5),
    (-250, 103.553, 0.5),
    (-103.553, 250, 0.5),
    (103.553, 250, 0.5),
    (250, 103.553, 0.5),
    (250, -103.553, 0.5),
]))
fillet.Radius = 15

sketch8 = body.newObject("Sketcher::SketchObject", "Sketch007")
sketch8.AttachmentSupport = (doc.getObject("XY_Plane"), [""])
sketch8.MapMode = "FlatFace"
sketch8.addGeometry([
    Part.LineSegment(Vector(370, 153, 0), Vector(153, 370, 0)),
    Part.LineSegment(Vector(153, 370, 0), Vector(-153, 370, 0)),
    Part.LineSegment(Vector(-153, 370, 0), Vector(-370, 153, 0)),
    Part.LineSegment(Vector(-370, 153, 0), Vector(-370, -153, 0)),
    Part.LineSegment(Vector(-370, -153, 0), Vector(-153, -370, 0)),
    Part.LineSegment(Vector(-153, -370, 0), Vector(153, -370, 0)),
    Part.LineSegment(Vector(153, -370, 0), Vector(370, -153, 0)),
    Part.LineSegment(Vector(370, -153, 0), Vector(370, 153, 0)),
    Part.LineSegment(Vector(100, 241, 0), Vector(241, 100, 0)),
    Part.LineSegment(Vector(241, 100, 0), Vector(241, -100, 0)),
    Part.LineSegment(Vector(241, -100, 0), Vector(100, -241, 0)),
    Part.LineSegment(Vector(100, -241, 0), Vector(-100, -241, 0)),
    Part.LineSegment(Vector(-100, -241, 0), Vector(-241, -100, 0)),
    Part.LineSegment(Vector(-241, -100, 0), Vector(-241, 100, 0)),
    Part.LineSegment(Vector(-241, 100, 0), Vector(-100, 241, 0)),
    Part.LineSegment(Vector(-100, 241, 0), Vector(100, 241, 0)),
], False)
sketch8.addConstraint([
    Sketcher.Constraint("Coincident", 0, 2, 1, 1),
    Sketcher.Constraint("Coincident", 1, 2, 2, 1),
    Sketcher.Constraint("Coincident", 2, 2, 3, 1),
    Sketcher.Constraint("Coincident", 3, 2, 4, 1),
    Sketcher.Constraint("Coincident", 4, 2, 5, 1),
    Sketcher.Constraint("Coincident", 5, 2, 6, 1),
    Sketcher.Constraint("Coincident", 6, 2, 7, 1),
    Sketcher.Constraint("Coincident", 7, 2, 0, 1),
    Sketcher.Constraint("Coincident", 8, 2, 9, 1),
    Sketcher.Constraint("Coincident", 9, 2, 10, 1),
    Sketcher.Constraint("Coincident", 10, 2, 11, 1),
    Sketcher.Constraint("Coincident", 11, 2, 12, 1),
    Sketcher.Constraint("Coincident", 12, 2, 13, 1),
    Sketcher.Constraint("Coincident", 13, 2, 14, 1),
    Sketcher.Constraint("Coincident", 14, 2, 15, 1),
    Sketcher.Constraint("Coincident", 15, 2, 8, 1),
    Sketcher.Constraint("Horizontal", 1),
    Sketcher.Constraint("Vertical", 3),
    Sketcher.Constraint("Horizontal", 5),
    Sketcher.Constraint("Vertical", 7),
    Sketcher.Constraint("Vertical", 9),
    Sketcher.Constraint("Horizontal", 11),
    Sketcher.Constraint("Vertical", 13),
    Sketcher.Constraint("Horizontal", 15),
    Sketcher.Constraint("Symmetric", 0, 2, 4, 2, -1, 1),
    Sketcher.Constraint("Symmetric", 2, 2, 6, 2, -1, 1),
    Sketcher.Constraint("Symmetric", 8, 2, 12, 2, -1, 1),
    Sketcher.Constraint("Symmetric", 10, 2, 14, 2, -1, 1),
    Sketcher.Constraint("Perpendicular", 0, 2),
    Sketcher.Constraint("Perpendicular", 2, 4),
    Sketcher.Constraint("Perpendicular", 4, 6),
    Sketcher.Constraint("Perpendicular", 6, 8),
    Sketcher.Constraint("Perpendicular", 8, 10),
    Sketcher.Constraint("Perpendicular", 10, 12),
    Sketcher.Constraint("Perpendicular", 12, 14),
    Sketcher.Constraint("Horizontal", 3, 2, 6, 2),
    Sketcher.Constraint("Horizontal", 9, 2, 12, 2),
    Sketcher.Constraint("Vertical", 1, 2, 4, 2),
    Sketcher.Constraint("Equal", 5, 3),
    Sketcher.Constraint("Equal", 15, 9),
    Sketcher.Constraint("DistanceX", 11, 2, 11, 1, Q("200 mm")),
    Sketcher.Constraint("Distance", 8, Q("200 mm")),
    Sketcher.Constraint("DistanceX", 1, 2, 1, 1, Q("306.146746 mm")),
    Sketcher.Constraint("DistanceX", 2, 2, 1, 2, Q("216.47844 mm")),
])
pad2 = body.newObject("PartDesign::Pad", "Pad001")
pad2.Profile = sketch8
pad2.Length = 1

doc.recompute()
